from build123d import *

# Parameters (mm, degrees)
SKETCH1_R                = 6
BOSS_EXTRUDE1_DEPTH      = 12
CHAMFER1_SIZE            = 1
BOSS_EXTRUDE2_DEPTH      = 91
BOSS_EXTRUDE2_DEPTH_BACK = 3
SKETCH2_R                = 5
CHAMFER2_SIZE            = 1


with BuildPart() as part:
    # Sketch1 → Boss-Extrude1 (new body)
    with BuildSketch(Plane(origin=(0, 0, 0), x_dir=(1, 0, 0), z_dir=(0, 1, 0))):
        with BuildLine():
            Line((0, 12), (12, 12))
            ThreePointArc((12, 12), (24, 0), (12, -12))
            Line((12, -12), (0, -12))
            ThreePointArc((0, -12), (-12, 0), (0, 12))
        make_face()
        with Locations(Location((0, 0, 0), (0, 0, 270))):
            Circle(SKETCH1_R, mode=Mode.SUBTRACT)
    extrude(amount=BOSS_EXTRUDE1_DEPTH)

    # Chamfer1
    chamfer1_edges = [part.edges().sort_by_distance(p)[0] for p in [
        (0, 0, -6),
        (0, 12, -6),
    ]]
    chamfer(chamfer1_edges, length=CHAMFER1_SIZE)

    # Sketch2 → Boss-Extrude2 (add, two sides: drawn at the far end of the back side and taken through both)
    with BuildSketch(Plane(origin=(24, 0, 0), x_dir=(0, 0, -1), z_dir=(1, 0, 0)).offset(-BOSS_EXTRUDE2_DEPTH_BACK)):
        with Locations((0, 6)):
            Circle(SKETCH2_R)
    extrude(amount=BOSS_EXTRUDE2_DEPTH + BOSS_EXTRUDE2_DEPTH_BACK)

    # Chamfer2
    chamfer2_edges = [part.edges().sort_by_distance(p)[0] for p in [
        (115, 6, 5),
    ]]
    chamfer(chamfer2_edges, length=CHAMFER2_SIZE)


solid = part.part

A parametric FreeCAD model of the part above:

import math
import FreeCAD as App
import Part
import Sketcher
from FreeCAD import Vector


def edges_at(feature, points):
    """Names of the edges that pass closest to the given points."""
    edges = feature.Shape.Edges
    near = lambda p: min(range(len(edges)), key=lambda i: edges[i].distToShape(Part.Vertex(*p))[0])
    return sorted({f"Edge{near(p) + 1}" for p in points})

doc = App.newDocument("Part")
params = doc.addObject("Spreadsheet::Sheet", "Params")
for row, (alias, value) in enumerate([
    ("sketch1_diameter", "12 mm"),
    ("sketch1_radius", "12 mm"),
    ("sketch1_width", "12 mm"),
    ("pad1_length", "12 mm"),
    ("chamfer_size", "1 mm"),
    ("sketch2_diameter", "10 mm"),
    ("pad2_length", "91 mm"),
    ("pad2_length2", "3 mm"),
    ("chamfer2_size", "1 mm"),
], start=1):
    params.set(f"A{row}", alias)
    params.set(f"B{row}", "=" + value)
    params.setAlias(f"B{row}", alias)

body = doc.addObject("PartDesign::Body", "Body")

sketch1 = body.newObject("Sketcher::SketchObject", "Sketch")
sketch1.AttachmentSupport = (doc.getObject("XZ_Plane"), [""])
sketch1.MapMode = "FlatFace"
sketch1.addGeometry(Part.LineSegment(Vector(12, -12, 0), Vector(0, -12, 0)), False)
sketch1.addGeometry(Part.ArcOfCircle(Part.Circle(Vector(0, 0, 0), Vector(0, 0, 1), 12), math.radians(90), math.radians(270)), False)
sketch1.addGeometry(Part.LineSegment(Vector(0, 12, 0), Vector(12, 12, 0)), False)
sketch1.addGeometry(Part.ArcOfCircle(Part.Circle(Vector(12, 0, 0), Vector(0, 0, 1), 12), math.radians(-90), math.radians(90)), False)
sketch1.addGeometry(Part.Circle(Vector(0, 0, 0), Vector(0, 0, 1), 6), False)
sketch1.addConstraint(Sketcher.Constraint("Tangent", 0, 2, 1, 2))
sketch1.addConstraint(Sketcher.Constraint("Tangent", 1, 1, 2, 1))
sketch1.addConstraint(Sketcher.Constraint("Tangent", 2, 2, 3, 2))
sketch1.addConstraint(Sketcher.Constraint("Tangent", 3, 1, 0, 1))
sketch1.addConstraint(Sketcher.Constraint("Horizontal", 0))
sketch1.addConstraint(Sketcher.Constraint("Horizontal", 2))
sketch1.addConstraint(Sketcher.Constraint("Coincident", 1, 3, -1, 1))
sketch1.addConstraint(Sketcher.Constraint("Coincident", 4, 3, -1, 1))
sketch1.addConstraint(Sketcher.Constraint("Diameter", 4, 12.0))
sketch1.addConstraint(Sketcher.Constraint("Radius", 1, 12.0))
sketch1.addConstraint(Sketcher.Constraint("DistanceX", 0, 2, 0, 1, 12.0))
sketch1.setExpression("Constraints[8]", "Params.sketch1_diameter")
sketch1.setExpression("Constraints[9]", "Params.sketch1_radius")
sketch1.setExpression("Constraints[10]", "Params.sketch1_width")
pad1 = body.newObject("PartDesign::Pad", "Pad")
pad1.Profile = sketch1
pad1.setExpression("Length", "Params.pad1_length")
pad1.Reversed = True
doc.recompute()

chamfer = body.newObject("PartDesign::Chamfer", "Chamfer")
chamfer.Base = (pad1, edges_at(pad1, [(0, 0, -6), (0, 12, -6)]))
chamfer.setExpression("Size", "Params.chamfer_size")

sketch2 = body.newObject("Sketcher::SketchObject", "Sketch001")
sketch2.AttachmentSupport = (doc.getObject("YZ_Plane"), [""])
sketch2.MapMode = "FlatFace"
sketch2.AttachmentOffset = App.Placement(Vector(0, 0, 24), App.Rotation())
sketch2.addGeometry(Part.Circle(Vector(6, 0, 0), Vector(0, 0, 1), 5), False)
sketch2.addConstraint(Sketcher.Constraint("PointOnObject", 0, 3, -1))
sketch2.addConstraint(Sketcher.Constraint("Diameter", 0, 10.0))
sketch2.addConstraint(Sketcher.Constraint("DistanceX", -1, 1, 0, 3, 6.0))
sketch2.setExpression("Constraints[1]", "Params.sketch2_diameter")
pad2 = body.newObject("PartDesign::Pad", "Pad001")
pad2.Profile = sketch2
pad2.Type = "TwoLengths"
pad2.setExpression("Length", "Params.pad2_length")
pad2.setExpression("Length2", "Params.pad2_length2")
doc.recompute()

chamfer2 = body.newObject("PartDesign::Chamfer", "Chamfer001")
chamfer2.Base = (pad2, edges_at(pad2, [(115, 6, 5)]))
chamfer2.setExpression("Size", "Params.chamfer2_size")

doc.recompute()
